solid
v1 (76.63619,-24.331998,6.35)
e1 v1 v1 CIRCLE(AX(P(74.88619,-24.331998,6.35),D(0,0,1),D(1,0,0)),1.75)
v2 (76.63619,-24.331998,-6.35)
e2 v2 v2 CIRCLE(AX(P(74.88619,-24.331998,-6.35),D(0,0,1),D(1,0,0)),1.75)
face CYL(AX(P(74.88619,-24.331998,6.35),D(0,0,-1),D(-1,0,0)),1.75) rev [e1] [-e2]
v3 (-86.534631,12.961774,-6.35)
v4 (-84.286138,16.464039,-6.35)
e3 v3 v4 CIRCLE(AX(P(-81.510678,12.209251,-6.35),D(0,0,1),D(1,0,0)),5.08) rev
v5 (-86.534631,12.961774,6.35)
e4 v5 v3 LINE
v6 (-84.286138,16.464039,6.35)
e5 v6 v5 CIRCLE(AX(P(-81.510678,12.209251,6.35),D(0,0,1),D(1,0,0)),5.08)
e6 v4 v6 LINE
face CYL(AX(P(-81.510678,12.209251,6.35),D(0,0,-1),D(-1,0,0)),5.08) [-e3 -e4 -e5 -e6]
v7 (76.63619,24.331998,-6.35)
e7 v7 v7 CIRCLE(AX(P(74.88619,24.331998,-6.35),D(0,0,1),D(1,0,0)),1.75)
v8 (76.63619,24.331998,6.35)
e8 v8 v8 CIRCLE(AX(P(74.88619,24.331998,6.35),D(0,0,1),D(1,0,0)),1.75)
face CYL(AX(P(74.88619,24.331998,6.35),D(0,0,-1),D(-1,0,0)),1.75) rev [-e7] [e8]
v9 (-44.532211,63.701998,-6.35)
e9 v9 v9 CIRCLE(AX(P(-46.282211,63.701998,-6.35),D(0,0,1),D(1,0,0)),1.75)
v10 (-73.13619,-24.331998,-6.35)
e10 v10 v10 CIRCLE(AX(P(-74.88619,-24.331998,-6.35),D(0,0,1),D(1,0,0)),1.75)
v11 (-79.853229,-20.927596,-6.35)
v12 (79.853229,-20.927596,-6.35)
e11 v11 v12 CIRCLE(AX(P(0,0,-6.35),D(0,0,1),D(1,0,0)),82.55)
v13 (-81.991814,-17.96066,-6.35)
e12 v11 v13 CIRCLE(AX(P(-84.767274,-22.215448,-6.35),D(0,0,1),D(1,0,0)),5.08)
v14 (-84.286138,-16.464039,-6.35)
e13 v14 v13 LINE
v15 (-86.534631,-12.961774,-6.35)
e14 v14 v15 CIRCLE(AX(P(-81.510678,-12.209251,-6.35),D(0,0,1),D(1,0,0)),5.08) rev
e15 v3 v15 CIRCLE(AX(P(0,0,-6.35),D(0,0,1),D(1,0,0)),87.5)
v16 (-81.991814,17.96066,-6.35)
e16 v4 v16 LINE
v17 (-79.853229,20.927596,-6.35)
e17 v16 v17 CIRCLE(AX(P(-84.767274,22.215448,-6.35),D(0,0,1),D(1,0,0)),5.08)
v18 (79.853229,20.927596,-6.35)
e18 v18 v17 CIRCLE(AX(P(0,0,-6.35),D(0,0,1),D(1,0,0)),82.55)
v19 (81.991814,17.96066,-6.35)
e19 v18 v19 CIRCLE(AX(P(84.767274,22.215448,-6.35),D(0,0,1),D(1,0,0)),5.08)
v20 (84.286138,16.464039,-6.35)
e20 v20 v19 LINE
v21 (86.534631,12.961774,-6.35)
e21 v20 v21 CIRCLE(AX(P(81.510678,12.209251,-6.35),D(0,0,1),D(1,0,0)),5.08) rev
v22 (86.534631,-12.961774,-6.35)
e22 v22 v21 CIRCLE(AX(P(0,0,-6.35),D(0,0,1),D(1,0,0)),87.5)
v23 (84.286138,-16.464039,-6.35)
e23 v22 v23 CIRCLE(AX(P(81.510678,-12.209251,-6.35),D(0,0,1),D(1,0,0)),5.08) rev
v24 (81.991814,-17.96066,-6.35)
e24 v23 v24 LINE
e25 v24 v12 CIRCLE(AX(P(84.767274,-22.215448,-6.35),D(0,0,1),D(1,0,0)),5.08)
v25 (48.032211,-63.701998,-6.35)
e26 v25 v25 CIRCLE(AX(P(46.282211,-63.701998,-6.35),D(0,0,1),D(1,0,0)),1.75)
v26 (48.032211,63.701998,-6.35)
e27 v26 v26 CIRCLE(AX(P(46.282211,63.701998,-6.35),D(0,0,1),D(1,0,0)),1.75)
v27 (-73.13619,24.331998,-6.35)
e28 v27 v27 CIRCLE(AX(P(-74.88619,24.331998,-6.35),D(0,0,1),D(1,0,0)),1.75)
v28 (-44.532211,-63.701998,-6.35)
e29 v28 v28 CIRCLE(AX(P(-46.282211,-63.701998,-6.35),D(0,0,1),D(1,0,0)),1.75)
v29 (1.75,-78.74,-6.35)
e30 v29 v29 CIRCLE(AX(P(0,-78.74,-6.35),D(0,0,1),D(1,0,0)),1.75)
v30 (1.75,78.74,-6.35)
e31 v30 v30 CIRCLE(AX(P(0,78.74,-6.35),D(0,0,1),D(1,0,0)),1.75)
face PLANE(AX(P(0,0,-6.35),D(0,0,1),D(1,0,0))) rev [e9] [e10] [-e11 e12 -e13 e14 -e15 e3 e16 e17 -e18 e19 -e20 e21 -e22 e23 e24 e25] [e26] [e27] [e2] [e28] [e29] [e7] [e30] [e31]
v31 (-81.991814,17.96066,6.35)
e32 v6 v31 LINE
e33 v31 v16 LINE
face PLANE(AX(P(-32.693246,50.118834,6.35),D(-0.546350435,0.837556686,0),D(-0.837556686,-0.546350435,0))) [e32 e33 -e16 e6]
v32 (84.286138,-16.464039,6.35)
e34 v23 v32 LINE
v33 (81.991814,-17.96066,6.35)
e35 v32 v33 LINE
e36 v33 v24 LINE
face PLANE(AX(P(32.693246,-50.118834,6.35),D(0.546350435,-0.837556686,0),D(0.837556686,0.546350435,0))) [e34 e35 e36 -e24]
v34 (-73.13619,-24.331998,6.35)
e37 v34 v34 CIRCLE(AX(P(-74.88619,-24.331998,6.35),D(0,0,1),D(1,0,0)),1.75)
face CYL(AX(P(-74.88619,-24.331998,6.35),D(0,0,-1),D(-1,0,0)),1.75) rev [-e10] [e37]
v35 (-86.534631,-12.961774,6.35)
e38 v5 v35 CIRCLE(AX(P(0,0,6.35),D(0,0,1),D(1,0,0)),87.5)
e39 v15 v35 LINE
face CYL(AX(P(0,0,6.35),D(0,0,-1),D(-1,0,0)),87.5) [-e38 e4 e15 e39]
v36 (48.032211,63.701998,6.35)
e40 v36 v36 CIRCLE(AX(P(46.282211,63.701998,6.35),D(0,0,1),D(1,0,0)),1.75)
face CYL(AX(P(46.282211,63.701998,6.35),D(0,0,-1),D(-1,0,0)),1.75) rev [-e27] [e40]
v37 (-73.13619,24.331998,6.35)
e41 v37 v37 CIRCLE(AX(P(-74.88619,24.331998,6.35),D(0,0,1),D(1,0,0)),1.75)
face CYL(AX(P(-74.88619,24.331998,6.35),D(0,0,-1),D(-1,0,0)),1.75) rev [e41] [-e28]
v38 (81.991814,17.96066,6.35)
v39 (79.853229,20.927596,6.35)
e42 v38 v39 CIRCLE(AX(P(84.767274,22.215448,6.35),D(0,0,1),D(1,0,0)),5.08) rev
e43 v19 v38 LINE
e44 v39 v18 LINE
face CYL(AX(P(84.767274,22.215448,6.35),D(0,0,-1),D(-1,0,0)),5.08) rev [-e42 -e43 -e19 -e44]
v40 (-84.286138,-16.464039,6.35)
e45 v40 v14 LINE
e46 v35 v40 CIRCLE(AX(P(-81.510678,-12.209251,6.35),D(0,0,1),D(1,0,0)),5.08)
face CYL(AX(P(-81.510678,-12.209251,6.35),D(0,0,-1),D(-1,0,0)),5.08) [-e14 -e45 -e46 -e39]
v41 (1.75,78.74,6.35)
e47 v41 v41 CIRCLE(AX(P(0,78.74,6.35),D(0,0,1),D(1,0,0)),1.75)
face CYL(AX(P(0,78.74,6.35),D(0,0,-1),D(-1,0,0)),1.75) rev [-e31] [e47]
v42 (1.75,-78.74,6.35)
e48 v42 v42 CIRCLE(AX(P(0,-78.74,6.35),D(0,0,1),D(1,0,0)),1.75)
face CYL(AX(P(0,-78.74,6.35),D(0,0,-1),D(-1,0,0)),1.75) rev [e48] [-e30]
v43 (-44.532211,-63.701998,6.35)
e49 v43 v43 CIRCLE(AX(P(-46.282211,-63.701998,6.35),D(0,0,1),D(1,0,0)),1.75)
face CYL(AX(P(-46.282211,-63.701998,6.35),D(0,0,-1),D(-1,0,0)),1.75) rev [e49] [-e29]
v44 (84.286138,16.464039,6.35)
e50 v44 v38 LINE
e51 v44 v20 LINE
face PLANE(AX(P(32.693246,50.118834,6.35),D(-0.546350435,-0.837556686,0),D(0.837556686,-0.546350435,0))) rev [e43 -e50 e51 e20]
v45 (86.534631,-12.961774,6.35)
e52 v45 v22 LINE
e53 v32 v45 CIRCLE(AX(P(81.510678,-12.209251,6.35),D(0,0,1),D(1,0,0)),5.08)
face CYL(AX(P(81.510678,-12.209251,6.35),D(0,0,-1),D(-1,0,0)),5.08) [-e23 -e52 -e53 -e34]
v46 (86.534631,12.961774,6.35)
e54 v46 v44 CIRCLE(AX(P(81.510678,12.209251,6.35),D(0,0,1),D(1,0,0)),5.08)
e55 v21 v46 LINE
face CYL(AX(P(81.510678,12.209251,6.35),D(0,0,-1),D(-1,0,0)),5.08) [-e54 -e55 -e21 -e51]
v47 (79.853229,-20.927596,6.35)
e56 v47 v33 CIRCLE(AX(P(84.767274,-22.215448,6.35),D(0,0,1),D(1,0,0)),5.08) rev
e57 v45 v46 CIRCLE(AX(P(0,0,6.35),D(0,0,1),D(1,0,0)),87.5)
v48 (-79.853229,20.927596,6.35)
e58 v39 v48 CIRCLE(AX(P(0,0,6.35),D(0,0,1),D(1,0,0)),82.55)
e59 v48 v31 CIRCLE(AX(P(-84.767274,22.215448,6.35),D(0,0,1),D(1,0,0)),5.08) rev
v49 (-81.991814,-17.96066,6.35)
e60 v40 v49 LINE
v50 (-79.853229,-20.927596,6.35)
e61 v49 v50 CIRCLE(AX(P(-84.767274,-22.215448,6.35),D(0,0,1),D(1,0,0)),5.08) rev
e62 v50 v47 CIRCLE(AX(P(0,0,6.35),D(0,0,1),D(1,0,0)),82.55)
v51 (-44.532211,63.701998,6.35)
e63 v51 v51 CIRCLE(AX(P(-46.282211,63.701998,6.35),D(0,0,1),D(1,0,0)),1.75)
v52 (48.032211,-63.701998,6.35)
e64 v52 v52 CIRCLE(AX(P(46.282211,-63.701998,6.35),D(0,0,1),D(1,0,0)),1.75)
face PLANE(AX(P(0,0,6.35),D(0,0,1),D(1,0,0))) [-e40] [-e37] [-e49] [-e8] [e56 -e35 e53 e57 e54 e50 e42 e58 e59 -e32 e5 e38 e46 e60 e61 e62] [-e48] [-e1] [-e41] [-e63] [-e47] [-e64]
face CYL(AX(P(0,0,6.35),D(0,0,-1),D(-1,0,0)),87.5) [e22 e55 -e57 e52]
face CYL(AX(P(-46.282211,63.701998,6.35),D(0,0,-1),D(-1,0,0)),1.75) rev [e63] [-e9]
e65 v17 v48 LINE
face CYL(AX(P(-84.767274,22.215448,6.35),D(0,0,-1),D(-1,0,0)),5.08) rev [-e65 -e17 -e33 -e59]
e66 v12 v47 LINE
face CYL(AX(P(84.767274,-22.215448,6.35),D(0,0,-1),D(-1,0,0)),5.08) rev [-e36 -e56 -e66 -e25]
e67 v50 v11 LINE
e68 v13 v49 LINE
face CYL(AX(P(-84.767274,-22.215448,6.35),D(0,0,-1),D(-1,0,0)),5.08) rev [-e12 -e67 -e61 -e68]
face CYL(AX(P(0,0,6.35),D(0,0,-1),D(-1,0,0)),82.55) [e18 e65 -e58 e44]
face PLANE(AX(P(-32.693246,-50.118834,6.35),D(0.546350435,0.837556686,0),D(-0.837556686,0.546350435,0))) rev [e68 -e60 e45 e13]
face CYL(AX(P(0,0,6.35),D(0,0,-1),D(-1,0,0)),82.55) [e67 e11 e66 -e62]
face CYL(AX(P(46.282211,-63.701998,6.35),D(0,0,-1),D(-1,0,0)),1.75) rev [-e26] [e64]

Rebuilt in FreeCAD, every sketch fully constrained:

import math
import FreeCAD as App
import Part
import Sketcher

V = App.Vector
Q = App.Units.Quantity


def edges_at(feature, points):
    """Names of the edges that pass closest to the given points."""
    edges = feature.Shape.Edges
    near = lambda p: min(range(len(edges)), key=lambda i: edges[i].distToShape(Part.Vertex(*p))[0])
    return sorted({f"Edge{near(p) + 1}" for p in points})

doc = App.newDocument("Part")
body = doc.addObject("PartDesign::Body", "Body")

sketch1 = body.newObject("Sketcher::SketchObject", "Sketch")
sketch1.AttachmentSupport = (doc.getObject("XY_Plane"), [""])
sketch1.MapMode = "FlatFace"
sketch1.addGeometry([
    Part.LineSegment(V(-80.3, 19.1, 0), V(-86.2, 15.2, 0)),
    Part.ArcOfCircle(Part.Circle(V(0, 0, 0), V(0, 0, 1), 87.5), math.radians(170), math.radians(190)),
    Part.LineSegment(V(-86.2, -15.2, 0), V(-80.3, -19.1, 0)),
    Part.ArcOfCircle(Part.Circle(V(0, 0, 0), V(0, 0, 1), 82.5), math.radians(-167), math.radians(-13)),
    Part.LineSegment(V(80.3, -19.1, 0), V(86.2, -15.2, 0)),
    Part.ArcOfCircle(Part.Circle(V(0, 0, 0), V(0, 0, 1), 87.5), math.radians(-10), math.radians(10)),
    Part.LineSegment(V(86.2, 15.2, 0), V(80.3, 19.1, 0)),
    Part.ArcOfCircle(Part.Circle(V(0, 0, 0), V(0, 0, 1), 82.5), math.radians(13), math.radians(167)),
    Part.Circle(V(46.3, -63.7, 0), V(0, 0, 1), 1.8),
    Part.Circle(V(74.9, -24.3, 0), V(0, 0, 1), 1.8),
    Part.Circle(V(0, -78.7, 0), V(0, 0, 1), 1.8),
    Part.Circle(V(-46.3, -63.7, 0), V(0, 0, 1), 1.8),
    Part.Circle(V(-74.9, -24.3, 0), V(0, 0, 1), 1.8),
    Part.Circle(V(74.9, 24.3, 0), V(0, 0, 1), 1.8),
    Part.Circle(V(46.3, 63.7, 0), V(0, 0, 1), 1.8),
    Part.Circle(V(-74.9, 24.3, 0), V(0, 0, 1), 1.8),
    Part.Circle(V(0, 78.7, 0), V(0, 0, 1), 1.8),
    Part.Circle(V(-46.3, 63.7, 0), V(0, 0, 1), 1.8),
], False)
sketch1.addConstraint([
    Sketcher.Constraint("Coincident", 0, 2, 1, 1),
    Sketcher.Constraint("Coincident", 1, 2, 2, 1),
    Sketcher.Constraint("Coincident", 2, 2, 3, 1),
    Sketcher.Constraint("Coincident", 3, 2, 4, 1),
    Sketcher.Constraint("Coincident", 4, 2, 5, 1),
    Sketcher.Constraint("Coincident", 5, 2, 6, 1),
    Sketcher.Constraint("Coincident", 6, 2, 7, 1),
    Sketcher.Constraint("Coincident", 7, 2, 0, 1),
    Sketcher.Constraint("Coincident", 1, 3, -1, 1),
    Sketcher.Constraint("Coincident", 3, 3, -1, 1),
    Sketcher.Constraint("Coincident", 5, 3, -1, 1),
    Sketcher.Constraint("Coincident", 7, 3, -1, 1),
    Sketcher.Constraint("Equal", 1, 5),
    Sketcher.Constraint("Equal", 3, 7),
    Sketcher.Constraint("Equal", 8, 9),
    Sketcher.Constraint("Equal", 9, 10),
    Sketcher.Constraint("Equal", 10, 11),
    Sketcher.Constraint("Equal", 11, 12),
    Sketcher.Constraint("Equal", 12, 13),
    Sketcher.Constraint("Equal", 13, 14),
    Sketcher.Constraint("Equal", 14, 15),
    Sketcher.Constraint("Equal", 15, 16),
    Sketcher.Constraint("Equal", 16, 17),
    Sketcher.Constraint("Symmetric", 12, 3, 13, 3, -1, 1),
    Sketcher.Constraint("Symmetric", 11, 3, 14, 3, -1, 1),
    Sketcher.Constraint("Symmetric", 9, 3, 15, 3, -1, 1),
    Sketcher.Constraint("Symmetric", 10, 3, 16, 3, -1, 1),
    Sketcher.Constraint("Symmetric", 8, 3, 17, 3, -1, 1),
    Sketcher.Constraint("Symmetric", 8, 3, 11, 3, -2),
    Sketcher.Constraint("Symmetric", 9, 3, 12, 3, -2),
    Sketcher.Constraint("PointOnObject", 10, 3, -2),
    Sketcher.Constraint("Parallel", 0, 4),
    Sketcher.Constraint("Parallel", 2, 6),
    Sketcher.Constraint("Horizontal", 2, 2, 3, 2),
    Sketcher.Constraint("Horizontal", 1, 2, 4, 2),
    Sketcher.Constraint("Horizontal", 0, 2, 5, 2),
    Sketcher.Constraint("Vertical", 0, 2, 1, 2),
    Sketcher.Constraint("Radius", 3, Q("3.25 in")),
    Sketcher.Constraint("DistanceY", 10, 3, -1, 1, Q("3.1 in")),
    Sketcher.Constraint("DistanceY", -1, 1, 0, 2, Q("0.6 in")),
    Sketcher.Constraint("DistanceY", 3, 2, 6, 2, Q("1.5 in")),
    Sketcher.Constraint("Diameter", 8, Q("3.5 mm")),
    Sketcher.Constraint("Radius", 1, Q("87.5 mm")),
    Sketcher.Constraint("DistanceY", 8, 3, 9, 3, Q("1.55 in")),
    Sketcher.Constraint("DistanceY", 8, 3, -1, 1, Q("63.701998 mm")),
    Sketcher.Constraint("DistanceX", -1, 1, 8, 3, Q("46.282211 mm")),
    Sketcher.Constraint("DistanceX", -1, 1, 9, 3, Q("74.88619 mm")),
])
pad1 = body.newObject("PartDesign::Pad", "Pad")
pad1.Profile = sketch1
pad1.Length = Q("0.5 in")
pad1.Midplane = True
doc.recompute()

fillet = body.newObject("PartDesign::Fillet", "Fillet")
fillet.Base = (pad1, edges_at(pad1, [
    (-86.163, -15.24, 0),
    (-86.163, 15.24, 0),
    (-80.322, 19.05, 0),
    (80.322, 19.05, 0),
    (86.163, 15.24, 0),
    (86.163, -15.24, 0),
    (80.322, -19.05, 0),
    (-80.322, -19.05, 0),
]))
fillet.Radius = Q("0.2 in")

doc.recompute()
